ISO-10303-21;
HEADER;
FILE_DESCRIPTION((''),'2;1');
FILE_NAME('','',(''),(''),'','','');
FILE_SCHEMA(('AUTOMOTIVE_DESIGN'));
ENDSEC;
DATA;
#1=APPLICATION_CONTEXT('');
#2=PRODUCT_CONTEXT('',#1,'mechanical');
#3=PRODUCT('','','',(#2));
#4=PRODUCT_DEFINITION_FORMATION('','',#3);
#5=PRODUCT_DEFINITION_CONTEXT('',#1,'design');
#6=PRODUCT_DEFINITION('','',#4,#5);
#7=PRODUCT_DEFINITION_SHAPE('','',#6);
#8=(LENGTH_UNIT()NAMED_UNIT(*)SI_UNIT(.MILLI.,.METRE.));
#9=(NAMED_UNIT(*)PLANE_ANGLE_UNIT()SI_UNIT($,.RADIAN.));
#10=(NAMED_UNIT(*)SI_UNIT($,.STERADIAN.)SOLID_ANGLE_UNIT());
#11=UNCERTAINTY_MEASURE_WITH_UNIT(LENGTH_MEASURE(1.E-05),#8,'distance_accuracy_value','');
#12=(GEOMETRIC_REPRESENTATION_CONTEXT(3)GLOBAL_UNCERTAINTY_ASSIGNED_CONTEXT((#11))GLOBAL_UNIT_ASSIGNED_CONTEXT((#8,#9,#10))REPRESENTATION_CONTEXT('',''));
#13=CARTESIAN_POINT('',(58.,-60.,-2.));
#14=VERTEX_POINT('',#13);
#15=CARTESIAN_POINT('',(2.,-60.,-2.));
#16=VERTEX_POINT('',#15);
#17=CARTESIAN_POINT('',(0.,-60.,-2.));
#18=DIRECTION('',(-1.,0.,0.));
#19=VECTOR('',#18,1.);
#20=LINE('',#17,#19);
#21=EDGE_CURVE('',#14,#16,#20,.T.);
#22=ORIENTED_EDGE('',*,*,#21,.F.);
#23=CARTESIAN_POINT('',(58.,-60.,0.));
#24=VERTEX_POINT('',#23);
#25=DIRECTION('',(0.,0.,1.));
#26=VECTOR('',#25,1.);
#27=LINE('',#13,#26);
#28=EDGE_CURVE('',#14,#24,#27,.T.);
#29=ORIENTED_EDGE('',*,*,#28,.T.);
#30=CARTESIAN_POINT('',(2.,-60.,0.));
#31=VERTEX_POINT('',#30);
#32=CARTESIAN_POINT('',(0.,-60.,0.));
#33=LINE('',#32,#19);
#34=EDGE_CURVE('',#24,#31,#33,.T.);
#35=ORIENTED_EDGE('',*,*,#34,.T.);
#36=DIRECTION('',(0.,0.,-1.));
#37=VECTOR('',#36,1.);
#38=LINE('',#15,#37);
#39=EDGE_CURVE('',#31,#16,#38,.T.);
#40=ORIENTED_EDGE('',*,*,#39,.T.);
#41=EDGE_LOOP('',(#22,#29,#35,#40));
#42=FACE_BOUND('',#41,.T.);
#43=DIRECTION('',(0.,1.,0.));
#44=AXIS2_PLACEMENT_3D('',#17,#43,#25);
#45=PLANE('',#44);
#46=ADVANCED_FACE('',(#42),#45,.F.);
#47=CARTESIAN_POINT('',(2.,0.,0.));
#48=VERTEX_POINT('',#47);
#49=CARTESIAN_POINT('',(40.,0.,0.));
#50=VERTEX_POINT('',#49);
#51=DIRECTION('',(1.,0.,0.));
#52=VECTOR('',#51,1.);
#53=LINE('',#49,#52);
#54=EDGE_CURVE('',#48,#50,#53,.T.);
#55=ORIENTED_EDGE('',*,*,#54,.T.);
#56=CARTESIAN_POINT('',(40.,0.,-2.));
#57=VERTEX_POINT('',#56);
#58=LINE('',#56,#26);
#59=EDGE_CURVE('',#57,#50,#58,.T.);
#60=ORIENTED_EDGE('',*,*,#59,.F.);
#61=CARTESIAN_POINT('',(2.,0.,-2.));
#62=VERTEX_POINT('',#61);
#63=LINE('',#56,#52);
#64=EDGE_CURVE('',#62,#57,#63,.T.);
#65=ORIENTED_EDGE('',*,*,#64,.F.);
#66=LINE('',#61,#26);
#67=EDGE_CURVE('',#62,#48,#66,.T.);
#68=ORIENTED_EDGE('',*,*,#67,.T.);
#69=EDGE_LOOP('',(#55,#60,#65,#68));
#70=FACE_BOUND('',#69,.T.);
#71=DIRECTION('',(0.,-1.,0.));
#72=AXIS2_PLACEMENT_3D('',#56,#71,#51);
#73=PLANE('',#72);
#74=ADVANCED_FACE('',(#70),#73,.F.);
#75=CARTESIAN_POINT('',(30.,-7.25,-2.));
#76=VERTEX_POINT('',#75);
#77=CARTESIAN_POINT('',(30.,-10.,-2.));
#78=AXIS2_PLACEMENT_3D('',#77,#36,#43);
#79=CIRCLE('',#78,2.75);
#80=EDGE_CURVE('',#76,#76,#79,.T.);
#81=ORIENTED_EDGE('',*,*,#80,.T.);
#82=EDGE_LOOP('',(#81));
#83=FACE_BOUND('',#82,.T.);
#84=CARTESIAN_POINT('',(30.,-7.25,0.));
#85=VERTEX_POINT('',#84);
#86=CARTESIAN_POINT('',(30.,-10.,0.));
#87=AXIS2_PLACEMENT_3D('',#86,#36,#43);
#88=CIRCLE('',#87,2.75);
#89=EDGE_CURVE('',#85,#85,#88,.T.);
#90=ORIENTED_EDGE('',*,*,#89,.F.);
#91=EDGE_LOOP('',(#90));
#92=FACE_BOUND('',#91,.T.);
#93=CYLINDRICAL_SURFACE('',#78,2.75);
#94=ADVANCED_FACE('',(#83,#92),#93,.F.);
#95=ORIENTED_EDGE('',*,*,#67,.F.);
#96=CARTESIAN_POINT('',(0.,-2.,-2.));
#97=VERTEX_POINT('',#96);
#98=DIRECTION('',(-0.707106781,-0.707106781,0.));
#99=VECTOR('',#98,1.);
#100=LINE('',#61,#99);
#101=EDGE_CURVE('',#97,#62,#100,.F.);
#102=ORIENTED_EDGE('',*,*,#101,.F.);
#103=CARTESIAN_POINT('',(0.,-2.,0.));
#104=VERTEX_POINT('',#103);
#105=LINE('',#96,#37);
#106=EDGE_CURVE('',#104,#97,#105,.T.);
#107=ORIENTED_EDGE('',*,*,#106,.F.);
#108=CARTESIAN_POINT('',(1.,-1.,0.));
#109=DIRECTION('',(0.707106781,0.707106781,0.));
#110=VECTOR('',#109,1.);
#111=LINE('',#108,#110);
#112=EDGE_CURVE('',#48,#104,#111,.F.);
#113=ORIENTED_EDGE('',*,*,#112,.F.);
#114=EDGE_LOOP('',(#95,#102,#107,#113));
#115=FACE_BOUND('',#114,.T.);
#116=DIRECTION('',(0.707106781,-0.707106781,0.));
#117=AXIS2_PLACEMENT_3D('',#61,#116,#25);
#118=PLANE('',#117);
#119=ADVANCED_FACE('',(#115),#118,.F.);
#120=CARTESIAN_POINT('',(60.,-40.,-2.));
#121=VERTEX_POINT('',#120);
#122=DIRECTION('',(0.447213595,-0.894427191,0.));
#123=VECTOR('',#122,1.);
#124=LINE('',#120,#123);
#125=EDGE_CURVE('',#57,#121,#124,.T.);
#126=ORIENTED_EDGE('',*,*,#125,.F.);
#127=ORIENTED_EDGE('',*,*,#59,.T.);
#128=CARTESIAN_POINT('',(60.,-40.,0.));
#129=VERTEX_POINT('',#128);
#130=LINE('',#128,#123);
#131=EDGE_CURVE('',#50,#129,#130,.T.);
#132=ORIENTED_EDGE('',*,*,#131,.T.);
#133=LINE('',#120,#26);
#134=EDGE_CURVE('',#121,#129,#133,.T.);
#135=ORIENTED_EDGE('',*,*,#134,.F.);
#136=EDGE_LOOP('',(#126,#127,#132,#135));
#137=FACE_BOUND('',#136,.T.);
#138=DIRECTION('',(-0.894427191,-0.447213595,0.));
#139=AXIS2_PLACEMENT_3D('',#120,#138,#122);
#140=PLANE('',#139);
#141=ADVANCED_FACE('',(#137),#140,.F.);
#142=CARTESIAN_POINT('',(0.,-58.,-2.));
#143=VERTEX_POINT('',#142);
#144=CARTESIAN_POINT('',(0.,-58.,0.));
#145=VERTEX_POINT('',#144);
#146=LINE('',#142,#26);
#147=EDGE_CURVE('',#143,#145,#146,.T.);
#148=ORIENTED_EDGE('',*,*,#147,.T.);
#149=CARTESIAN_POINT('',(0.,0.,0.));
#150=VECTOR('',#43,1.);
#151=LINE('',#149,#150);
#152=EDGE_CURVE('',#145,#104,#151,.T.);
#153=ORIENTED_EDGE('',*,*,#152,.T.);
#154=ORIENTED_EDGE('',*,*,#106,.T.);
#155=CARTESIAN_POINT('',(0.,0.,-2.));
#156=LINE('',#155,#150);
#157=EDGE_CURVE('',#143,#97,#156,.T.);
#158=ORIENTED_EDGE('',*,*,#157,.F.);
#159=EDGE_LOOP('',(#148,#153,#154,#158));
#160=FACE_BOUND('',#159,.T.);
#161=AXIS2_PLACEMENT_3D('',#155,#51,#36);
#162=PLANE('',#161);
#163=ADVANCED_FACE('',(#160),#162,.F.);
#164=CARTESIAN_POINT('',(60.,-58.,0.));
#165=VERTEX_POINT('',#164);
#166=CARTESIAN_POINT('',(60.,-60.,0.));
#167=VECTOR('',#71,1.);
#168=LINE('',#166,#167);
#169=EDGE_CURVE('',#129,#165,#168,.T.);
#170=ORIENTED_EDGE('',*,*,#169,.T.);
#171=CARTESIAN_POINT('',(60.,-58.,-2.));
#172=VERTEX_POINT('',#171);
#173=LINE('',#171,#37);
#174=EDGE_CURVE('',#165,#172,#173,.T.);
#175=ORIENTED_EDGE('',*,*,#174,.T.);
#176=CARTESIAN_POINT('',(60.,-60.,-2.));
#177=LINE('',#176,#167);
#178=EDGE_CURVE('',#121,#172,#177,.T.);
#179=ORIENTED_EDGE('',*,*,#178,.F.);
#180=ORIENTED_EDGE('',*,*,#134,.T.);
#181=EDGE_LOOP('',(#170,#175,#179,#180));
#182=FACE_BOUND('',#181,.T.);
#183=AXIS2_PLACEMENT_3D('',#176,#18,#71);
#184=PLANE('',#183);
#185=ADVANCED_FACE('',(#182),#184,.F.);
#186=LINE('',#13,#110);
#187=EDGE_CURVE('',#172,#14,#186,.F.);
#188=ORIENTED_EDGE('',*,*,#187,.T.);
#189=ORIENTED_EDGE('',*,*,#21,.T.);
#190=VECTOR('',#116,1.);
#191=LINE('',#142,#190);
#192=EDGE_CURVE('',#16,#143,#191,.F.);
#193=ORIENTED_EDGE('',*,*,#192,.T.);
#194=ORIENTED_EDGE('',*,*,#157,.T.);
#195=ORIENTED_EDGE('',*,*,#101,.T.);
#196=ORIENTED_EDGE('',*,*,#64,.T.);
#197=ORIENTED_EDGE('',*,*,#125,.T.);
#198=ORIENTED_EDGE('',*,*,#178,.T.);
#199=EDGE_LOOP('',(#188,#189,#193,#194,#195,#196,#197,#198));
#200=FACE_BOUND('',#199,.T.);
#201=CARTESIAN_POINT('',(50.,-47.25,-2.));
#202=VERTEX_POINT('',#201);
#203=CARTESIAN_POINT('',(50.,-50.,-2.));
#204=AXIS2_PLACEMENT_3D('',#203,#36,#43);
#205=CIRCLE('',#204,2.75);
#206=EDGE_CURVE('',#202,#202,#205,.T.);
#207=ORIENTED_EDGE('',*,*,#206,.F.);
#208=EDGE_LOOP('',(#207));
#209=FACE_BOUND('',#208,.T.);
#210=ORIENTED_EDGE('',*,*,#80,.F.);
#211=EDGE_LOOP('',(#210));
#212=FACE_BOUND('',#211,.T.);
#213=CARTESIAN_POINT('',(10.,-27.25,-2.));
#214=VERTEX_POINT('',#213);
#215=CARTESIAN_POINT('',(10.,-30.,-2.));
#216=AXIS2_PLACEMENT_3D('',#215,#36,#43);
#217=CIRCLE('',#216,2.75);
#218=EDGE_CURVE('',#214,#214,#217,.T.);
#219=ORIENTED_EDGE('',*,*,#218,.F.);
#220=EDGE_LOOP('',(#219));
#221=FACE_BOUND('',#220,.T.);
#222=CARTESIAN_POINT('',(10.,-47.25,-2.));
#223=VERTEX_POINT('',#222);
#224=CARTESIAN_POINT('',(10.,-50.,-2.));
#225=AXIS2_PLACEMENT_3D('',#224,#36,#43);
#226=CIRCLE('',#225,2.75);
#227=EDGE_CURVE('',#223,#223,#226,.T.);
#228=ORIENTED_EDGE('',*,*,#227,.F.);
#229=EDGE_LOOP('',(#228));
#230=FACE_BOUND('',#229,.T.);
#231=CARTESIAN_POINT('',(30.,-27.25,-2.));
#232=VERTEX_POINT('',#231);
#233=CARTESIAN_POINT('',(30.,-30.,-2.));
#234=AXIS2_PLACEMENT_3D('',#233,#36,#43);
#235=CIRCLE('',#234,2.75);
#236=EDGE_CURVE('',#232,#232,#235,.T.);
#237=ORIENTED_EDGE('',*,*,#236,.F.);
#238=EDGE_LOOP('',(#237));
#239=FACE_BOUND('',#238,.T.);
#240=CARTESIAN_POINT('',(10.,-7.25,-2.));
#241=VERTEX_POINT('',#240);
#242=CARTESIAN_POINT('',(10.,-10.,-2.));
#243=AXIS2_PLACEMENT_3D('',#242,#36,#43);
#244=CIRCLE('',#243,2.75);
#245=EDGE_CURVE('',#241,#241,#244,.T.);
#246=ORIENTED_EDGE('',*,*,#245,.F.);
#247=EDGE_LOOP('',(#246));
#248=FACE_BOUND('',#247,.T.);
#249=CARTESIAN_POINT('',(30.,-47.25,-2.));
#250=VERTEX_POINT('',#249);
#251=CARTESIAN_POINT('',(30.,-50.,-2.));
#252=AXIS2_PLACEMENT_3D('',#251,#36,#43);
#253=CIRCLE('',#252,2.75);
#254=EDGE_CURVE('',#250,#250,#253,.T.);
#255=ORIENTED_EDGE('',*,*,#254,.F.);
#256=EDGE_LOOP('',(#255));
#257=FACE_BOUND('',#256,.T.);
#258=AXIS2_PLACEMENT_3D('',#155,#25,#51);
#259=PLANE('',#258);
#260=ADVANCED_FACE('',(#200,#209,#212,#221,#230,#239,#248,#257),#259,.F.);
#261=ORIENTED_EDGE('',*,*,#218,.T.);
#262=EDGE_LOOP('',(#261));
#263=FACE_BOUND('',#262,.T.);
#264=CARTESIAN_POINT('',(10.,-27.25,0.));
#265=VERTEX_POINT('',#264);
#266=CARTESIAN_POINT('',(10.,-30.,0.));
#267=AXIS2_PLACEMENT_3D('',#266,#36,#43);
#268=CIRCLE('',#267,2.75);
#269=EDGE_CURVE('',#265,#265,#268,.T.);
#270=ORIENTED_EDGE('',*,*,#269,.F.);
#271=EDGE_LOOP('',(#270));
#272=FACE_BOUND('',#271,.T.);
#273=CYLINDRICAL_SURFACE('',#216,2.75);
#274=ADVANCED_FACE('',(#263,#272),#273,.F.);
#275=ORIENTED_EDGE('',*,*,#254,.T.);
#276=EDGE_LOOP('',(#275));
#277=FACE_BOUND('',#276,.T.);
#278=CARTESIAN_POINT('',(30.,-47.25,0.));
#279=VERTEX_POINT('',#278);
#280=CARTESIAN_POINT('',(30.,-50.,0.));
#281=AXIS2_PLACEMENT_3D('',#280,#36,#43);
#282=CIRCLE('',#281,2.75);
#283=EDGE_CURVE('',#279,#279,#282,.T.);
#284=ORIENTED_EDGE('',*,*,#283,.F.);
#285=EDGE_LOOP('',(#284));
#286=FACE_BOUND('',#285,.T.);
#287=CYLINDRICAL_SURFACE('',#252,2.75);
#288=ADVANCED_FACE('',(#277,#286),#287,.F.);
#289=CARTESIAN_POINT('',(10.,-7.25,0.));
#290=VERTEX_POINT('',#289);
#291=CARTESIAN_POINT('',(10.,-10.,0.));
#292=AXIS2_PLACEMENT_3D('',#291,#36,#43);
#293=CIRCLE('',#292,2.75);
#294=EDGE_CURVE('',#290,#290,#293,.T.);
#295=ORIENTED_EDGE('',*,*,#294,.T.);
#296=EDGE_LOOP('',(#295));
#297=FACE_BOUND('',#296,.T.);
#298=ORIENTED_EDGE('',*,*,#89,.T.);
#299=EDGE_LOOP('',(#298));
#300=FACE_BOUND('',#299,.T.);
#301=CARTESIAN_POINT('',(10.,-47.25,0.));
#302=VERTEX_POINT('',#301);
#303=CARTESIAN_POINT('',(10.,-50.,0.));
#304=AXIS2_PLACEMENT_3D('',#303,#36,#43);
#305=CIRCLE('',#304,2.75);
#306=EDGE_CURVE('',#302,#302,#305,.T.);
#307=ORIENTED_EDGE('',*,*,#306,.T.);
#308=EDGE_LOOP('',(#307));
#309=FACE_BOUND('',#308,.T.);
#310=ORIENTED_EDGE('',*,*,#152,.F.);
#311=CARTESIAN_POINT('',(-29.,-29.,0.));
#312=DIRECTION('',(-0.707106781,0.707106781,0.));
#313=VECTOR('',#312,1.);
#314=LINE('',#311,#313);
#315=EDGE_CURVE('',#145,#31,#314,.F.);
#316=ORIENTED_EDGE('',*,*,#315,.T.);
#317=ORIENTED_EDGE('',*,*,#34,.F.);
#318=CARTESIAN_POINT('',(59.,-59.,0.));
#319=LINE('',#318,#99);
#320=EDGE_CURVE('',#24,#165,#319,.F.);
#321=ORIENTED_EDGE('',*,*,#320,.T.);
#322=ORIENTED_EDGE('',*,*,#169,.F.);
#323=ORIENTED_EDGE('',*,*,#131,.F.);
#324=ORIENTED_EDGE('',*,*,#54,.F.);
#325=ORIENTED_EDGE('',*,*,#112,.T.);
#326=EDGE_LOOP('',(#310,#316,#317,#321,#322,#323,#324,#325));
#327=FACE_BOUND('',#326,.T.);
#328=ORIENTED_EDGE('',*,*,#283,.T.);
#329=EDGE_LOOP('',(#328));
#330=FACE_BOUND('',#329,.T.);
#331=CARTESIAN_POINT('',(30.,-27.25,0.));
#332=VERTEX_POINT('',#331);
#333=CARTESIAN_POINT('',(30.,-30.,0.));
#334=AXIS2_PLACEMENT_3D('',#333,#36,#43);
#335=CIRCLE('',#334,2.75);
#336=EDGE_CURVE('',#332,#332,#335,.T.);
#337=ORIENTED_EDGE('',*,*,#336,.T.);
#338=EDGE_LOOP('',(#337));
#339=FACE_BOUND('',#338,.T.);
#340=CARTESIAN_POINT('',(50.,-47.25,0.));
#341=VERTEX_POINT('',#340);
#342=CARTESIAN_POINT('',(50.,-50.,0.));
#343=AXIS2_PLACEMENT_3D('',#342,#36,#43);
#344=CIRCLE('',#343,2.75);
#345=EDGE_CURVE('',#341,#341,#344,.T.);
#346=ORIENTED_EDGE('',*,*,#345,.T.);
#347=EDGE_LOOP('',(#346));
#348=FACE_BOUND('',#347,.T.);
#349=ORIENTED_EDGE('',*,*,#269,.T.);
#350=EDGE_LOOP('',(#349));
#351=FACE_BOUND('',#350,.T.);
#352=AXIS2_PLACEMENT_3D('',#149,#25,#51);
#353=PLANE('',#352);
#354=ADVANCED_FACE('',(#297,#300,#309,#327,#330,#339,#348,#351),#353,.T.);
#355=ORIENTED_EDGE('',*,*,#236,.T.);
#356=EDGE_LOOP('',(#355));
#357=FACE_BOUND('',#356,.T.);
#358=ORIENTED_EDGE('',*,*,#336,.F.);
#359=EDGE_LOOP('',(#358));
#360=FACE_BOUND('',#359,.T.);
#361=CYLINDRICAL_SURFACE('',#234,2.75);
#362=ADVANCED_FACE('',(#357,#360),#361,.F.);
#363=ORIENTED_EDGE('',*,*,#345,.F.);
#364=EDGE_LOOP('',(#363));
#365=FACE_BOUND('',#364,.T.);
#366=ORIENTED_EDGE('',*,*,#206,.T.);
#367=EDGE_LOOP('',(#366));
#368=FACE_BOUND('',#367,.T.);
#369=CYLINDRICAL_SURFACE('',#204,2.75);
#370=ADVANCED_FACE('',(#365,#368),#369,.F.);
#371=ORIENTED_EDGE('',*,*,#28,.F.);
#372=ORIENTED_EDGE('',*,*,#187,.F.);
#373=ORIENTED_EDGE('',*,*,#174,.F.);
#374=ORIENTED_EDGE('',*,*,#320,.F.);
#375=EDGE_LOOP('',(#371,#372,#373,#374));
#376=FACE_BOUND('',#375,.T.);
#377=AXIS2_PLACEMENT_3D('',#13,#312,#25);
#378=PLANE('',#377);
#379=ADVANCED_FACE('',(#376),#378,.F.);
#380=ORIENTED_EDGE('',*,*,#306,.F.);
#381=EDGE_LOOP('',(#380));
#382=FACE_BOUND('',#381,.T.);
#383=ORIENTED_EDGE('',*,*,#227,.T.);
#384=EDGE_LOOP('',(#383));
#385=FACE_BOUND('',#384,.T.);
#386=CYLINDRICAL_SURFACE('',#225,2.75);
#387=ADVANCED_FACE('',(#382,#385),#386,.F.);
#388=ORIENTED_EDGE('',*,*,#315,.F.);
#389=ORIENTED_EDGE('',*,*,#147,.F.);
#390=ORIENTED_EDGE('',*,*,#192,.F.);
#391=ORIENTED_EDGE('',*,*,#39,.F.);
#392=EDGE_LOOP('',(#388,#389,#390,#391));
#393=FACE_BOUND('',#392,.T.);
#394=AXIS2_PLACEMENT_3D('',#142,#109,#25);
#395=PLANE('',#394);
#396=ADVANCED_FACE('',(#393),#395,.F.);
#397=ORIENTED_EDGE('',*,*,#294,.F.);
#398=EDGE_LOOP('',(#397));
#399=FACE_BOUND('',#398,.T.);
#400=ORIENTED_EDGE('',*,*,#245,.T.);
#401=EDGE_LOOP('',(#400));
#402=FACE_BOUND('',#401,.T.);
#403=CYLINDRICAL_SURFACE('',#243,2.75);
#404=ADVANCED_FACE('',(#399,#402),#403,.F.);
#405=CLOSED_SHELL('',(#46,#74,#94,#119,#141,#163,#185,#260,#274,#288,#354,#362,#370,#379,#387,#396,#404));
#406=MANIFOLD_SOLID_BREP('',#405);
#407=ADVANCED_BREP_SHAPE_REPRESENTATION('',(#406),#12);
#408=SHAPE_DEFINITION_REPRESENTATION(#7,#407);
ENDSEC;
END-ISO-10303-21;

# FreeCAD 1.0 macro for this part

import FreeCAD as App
import Part
import Sketcher

V = App.Vector
Q = App.Units.Quantity


def edges_at(feature, points):
    """Names of the edges that pass closest to the given points."""
    edges = feature.Shape.Edges
    near = lambda p: min(range(len(edges)), key=lambda i: edges[i].distToShape(Part.Vertex(*p))[0])
    return sorted({f"Edge{near(p) + 1}" for p in points})

doc = App.newDocument("Part")
body = doc.addObject("PartDesign::Body", "Body")

# Sketch on XY plane
sketch1 = doc.addObject("Sketcher::SketchObject", "Sketch")
body.addObject(sketch1)
sketch1.AttachmentSupport = (doc.XY_Plane, [""])
sketch1.MapMode = "FlatFace"
sketch1.addGeometry([
    Part.LineSegment(V(0, -60, 0), V(0, 0, 0)),  # 0
    Part.LineSegment(V(0, 0, 0), V(40, 0, 0)),  # 1
    Part.LineSegment(V(40, 0, 0), V(60, -40, 0)),  # 2
    Part.LineSegment(V(60, -40, 0), V(60, -60, 0)),  # 3
    Part.LineSegment(V(60, -60, 0), V(0, -60, 0)),  # 4
], False)
sketch1.addConstraint([
    Sketcher.Constraint("Coincident", 0, 2, 1, 1),
    Sketcher.Constraint("Coincident", 1, 2, 2, 1),
    Sketcher.Constraint("Coincident", 2, 2, 3, 1),
    Sketcher.Constraint("Coincident", 3, 2, 4, 1),
    Sketcher.Constraint("Coincident", 4, 2, 0, 1),
    Sketcher.Constraint("Vertical", 0),
    Sketcher.Constraint("Horizontal", 1),
    Sketcher.Constraint("Vertical", 3),
    Sketcher.Constraint("Horizontal", 4),
    Sketcher.Constraint("Coincident", 0, 2, -1, 1),
    Sketcher.Constraint("Equal", 4, 0),
    Sketcher.Constraint("DistanceX", 1, 1, 1, 2, Q("40 mm")),
    Sketcher.Constraint("DistanceX", 4, 2, 4, 1, Q("60 mm")),
    Sketcher.Constraint("DistanceY", 3, 2, 3, 1, Q("20 mm")),
])
pad1 = doc.addObject("PartDesign::Pad", "Pad")
body.addObject(pad1)
pad1.Profile = sketch1
pad1.Length = 2
pad1.Reversed = True

# Sketch on XY plane
sketch2 = doc.addObject("Sketcher::SketchObject", "Sketch001")
body.addObject(sketch2)
sketch2.AttachmentSupport = (doc.XY_Plane, [""])
sketch2.MapMode = "FlatFace"
sketch2.AttachmentOffset = App.Placement(V(0, 0, -2), App.Rotation())
sketch2.addGeometry([
    Part.Circle(V(30, -50, 0), V(0, 0, 1), 2.8),  # 0
    Part.Circle(V(10, -50, 0), V(0, 0, 1), 2.8),  # 1
    Part.Circle(V(10, -30, 0), V(0, 0, 1), 2.8),  # 2
    Part.Circle(V(10, -10, 0), V(0, 0, 1), 2.8),  # 3
    Part.Circle(V(50, -50, 0), V(0, 0, 1), 2.8),  # 4
    Part.Circle(V(30, -30, 0), V(0, 0, 1), 2.8),  # 5
    Part.Circle(V(30, -10, 0), V(0, 0, 1), 2.8),  # 6
], False)
sketch2.addConstraint([
    Sketcher.Constraint("Equal", 0, 1),
    Sketcher.Constraint("Equal", 1, 2),
    Sketcher.Constraint("Equal", 2, 3),
    Sketcher.Constraint("Equal", 3, 4),
    Sketcher.Constraint("Equal", 4, 5),
    Sketcher.Constraint("Equal", 5, 6),
    Sketcher.Constraint("Horizontal", 0, 3, 1, 3),
    Sketcher.Constraint("Horizontal", 1, 3, 4, 3),
    Sketcher.Constraint("Horizontal", 2, 3, 5, 3),
    Sketcher.Constraint("Horizontal", 3, 3, 6, 3),
    Sketcher.Constraint("Vertical", 1, 3, 2, 3),
    Sketcher.Constraint("Vertical", 2, 3, 3, 3),
    Sketcher.Constraint("Vertical", 0, 3, 5, 3),
    Sketcher.Constraint("Vertical", 5, 3, 6, 3),
    Sketcher.Constraint("Diameter", 0, Q("5.5 mm")),
    Sketcher.Constraint("DistanceX", -1, 1, 0, 3, Q("30 mm")),
    Sketcher.Constraint("DistanceY", 0, 3, -1, 1, Q("50 mm")),
    Sketcher.Constraint("DistanceX", -1, 1, 1, 3, Q("10 mm")),
    Sketcher.Constraint("DistanceY", 2, 3, -1, 1, Q("30 mm")),
    Sketcher.Constraint("DistanceY", 3, 3, -1, 1, Q("10 mm")),
    Sketcher.Constraint("DistanceX", -1, 1, 4, 3, Q("50 mm")),
])
doc.recompute()
hole = doc.addObject("PartDesign::Hole", "Hole")
body.addObject(hole)
hole.Profile = sketch2
hole.ThreadType = "None"
hole.Diameter = 5.5
hole.DepthType = "ThroughAll"
hole.Reversed = True
doc.recompute()

chamfer = doc.addObject("PartDesign::Chamfer", "Chamfer")
body.addObject(chamfer)
chamfer.Base = (hole, edges_at(hole, [(0, 0, -1), (0, -60, -1), (60, -60, -1)]))
chamfer.Size = 2

doc.recompute()
